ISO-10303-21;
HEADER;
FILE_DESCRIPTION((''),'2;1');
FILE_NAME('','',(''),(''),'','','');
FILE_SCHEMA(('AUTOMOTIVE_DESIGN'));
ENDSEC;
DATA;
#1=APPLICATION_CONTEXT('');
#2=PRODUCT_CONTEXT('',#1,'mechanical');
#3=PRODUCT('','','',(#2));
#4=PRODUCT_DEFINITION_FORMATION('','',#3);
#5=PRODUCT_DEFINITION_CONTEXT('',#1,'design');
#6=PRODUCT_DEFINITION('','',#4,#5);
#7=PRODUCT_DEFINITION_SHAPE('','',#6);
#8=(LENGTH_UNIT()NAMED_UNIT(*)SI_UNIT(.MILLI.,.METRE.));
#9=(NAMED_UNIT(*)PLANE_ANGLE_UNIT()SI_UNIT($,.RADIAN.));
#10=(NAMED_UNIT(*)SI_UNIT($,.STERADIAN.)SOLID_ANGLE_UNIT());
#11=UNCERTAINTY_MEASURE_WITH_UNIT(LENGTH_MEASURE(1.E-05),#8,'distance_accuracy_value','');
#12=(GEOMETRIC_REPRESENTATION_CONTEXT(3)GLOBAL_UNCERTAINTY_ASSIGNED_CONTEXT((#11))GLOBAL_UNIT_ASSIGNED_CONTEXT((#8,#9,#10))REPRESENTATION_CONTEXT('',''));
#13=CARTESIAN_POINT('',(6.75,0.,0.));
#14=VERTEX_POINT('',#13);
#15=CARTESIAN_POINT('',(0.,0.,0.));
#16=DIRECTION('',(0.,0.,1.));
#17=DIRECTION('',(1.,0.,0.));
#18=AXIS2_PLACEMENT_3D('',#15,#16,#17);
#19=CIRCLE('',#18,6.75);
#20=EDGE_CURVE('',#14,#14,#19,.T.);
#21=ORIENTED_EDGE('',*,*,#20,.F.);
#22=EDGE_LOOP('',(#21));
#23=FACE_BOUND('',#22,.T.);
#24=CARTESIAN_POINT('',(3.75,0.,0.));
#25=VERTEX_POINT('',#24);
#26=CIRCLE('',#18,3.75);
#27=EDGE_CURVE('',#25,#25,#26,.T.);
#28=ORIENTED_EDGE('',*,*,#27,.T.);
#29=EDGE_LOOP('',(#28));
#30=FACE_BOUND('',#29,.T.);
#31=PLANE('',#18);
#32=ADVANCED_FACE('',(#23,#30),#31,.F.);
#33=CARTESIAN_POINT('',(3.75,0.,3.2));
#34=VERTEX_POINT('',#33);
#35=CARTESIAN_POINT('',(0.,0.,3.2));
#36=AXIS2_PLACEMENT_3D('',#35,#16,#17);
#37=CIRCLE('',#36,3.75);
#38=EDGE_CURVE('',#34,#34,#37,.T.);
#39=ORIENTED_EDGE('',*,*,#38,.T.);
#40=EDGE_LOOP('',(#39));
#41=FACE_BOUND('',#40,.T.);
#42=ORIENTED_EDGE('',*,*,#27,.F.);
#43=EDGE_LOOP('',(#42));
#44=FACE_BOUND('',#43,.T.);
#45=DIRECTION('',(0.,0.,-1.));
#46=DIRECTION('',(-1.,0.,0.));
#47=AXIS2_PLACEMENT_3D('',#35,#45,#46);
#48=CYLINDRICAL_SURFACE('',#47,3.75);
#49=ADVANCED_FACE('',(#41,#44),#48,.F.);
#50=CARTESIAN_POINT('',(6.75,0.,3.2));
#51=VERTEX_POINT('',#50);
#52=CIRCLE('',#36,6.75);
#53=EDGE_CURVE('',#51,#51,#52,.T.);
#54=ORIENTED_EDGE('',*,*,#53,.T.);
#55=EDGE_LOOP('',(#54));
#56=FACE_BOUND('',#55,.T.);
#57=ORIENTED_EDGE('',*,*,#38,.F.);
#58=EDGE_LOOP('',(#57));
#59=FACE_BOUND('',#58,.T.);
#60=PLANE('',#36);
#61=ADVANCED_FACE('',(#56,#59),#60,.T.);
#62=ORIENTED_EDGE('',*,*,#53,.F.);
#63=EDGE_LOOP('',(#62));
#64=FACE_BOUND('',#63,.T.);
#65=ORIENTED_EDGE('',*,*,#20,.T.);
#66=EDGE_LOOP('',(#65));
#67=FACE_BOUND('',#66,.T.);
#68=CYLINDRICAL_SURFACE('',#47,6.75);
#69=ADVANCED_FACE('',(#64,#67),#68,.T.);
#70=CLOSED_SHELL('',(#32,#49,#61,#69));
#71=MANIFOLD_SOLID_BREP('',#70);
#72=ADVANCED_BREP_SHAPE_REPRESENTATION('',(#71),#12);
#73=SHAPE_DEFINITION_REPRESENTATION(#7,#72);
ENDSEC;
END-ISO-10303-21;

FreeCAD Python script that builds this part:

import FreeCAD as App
import Part
import Sketcher
from FreeCAD import Vector

doc = App.newDocument("Part")
body = doc.addObject("PartDesign::Body", "Body")

# Sketch on XY plane
sketch1 = body.newObject("Sketcher::SketchObject", "Sketch")
sketch1.AttachmentSupport = (doc.getObject("XY_Plane"), [""])
sketch1.MapMode = "FlatFace"
sketch1.addGeometry([
    Part.Circle(Vector(0, 0, 0), Vector(0, 0, 1), 6.8),
    Part.Circle(Vector(0, 0, 0), Vector(0, 0, 1), 3.8),
], False)
sketch1.addConstraint([
    Sketcher.Constraint("Coincident", 0, 3, -1, 1),
    Sketcher.Constraint("Coincident", 1, 3, -1, 1),
    Sketcher.Constraint("Diameter", 0, 13.5),
    Sketcher.Constraint("Diameter", 1, 7.5),
])
pad1 = body.newObject("PartDesign::Pad", "Pad")
pad1.Profile = sketch1
pad1.Length = 3.2

doc.recompute()
